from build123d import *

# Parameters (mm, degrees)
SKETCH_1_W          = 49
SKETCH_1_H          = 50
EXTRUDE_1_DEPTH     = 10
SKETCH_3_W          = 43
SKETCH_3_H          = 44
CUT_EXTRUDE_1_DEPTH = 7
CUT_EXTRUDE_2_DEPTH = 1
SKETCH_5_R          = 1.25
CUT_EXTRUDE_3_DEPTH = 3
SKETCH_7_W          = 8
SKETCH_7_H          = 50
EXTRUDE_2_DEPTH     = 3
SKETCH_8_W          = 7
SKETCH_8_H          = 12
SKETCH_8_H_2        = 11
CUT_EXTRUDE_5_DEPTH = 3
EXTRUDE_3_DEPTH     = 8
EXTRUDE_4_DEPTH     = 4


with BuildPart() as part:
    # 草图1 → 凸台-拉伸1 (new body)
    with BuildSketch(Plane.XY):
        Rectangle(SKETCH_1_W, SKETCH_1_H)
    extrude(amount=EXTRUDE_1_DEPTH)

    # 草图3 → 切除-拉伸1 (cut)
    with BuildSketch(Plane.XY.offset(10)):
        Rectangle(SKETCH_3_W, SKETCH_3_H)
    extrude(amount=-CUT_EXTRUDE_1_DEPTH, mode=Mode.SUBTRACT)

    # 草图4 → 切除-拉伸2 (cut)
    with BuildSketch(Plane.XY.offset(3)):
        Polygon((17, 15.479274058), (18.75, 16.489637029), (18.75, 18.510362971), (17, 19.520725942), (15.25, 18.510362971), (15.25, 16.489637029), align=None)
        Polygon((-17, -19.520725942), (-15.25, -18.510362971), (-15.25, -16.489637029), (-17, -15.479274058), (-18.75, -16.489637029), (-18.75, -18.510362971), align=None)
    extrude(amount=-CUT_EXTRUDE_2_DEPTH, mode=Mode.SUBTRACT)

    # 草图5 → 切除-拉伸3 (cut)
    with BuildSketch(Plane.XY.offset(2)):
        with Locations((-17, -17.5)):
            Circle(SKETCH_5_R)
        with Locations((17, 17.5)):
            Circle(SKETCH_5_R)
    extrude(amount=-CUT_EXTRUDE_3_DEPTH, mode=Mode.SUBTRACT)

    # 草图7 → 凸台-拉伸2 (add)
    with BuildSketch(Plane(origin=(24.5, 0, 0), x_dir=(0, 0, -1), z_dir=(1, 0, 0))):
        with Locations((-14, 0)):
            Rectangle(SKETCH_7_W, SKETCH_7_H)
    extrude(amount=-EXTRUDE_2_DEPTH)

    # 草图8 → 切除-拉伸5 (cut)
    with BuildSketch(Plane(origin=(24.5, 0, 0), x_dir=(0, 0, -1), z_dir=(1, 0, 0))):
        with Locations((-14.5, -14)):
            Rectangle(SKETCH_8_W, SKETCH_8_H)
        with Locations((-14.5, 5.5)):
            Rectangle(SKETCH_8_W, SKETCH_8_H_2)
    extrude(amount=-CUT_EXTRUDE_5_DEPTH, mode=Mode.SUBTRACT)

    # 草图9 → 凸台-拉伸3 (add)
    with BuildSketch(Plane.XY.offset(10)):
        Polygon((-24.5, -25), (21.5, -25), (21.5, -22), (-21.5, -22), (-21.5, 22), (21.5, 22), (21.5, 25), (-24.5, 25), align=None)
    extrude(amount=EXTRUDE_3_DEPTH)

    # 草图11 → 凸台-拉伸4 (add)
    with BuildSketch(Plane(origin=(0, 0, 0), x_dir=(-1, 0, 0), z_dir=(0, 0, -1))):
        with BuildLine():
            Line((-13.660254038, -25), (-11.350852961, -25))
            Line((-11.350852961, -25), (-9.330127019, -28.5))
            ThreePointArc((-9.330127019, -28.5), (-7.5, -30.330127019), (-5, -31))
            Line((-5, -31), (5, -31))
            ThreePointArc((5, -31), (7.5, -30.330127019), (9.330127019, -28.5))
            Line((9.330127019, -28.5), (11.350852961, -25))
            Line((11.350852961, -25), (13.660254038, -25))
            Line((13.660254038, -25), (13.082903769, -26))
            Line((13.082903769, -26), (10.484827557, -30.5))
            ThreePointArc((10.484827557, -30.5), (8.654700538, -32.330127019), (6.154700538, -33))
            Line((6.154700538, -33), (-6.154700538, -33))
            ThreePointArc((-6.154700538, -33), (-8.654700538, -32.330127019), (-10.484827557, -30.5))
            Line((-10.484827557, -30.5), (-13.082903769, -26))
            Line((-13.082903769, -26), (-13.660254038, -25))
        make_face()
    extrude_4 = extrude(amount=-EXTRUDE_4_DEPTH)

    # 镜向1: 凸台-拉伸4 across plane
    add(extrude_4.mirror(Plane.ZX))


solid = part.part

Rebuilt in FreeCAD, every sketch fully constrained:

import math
import FreeCAD as App
import Part
import Sketcher

V = App.Vector
Q = App.Units.Quantity

doc = App.newDocument("Part")
body = doc.addObject("PartDesign::Body", "Body")

sketch1 = body.newObject("Sketcher::SketchObject", "Sketch")
sketch1.AttachmentSupport = (doc.getObject("XY_Plane"), [""])
sketch1.MapMode = "FlatFace"
sketch1.addGeometry([
    Part.LineSegment(V(-24, 25, 0), V(-24, -25, 0)),
    Part.LineSegment(V(-24, -25, 0), V(24, -25, 0)),
    Part.LineSegment(V(24, -25, 0), V(24, 25, 0)),
    Part.LineSegment(V(24, 25, 0), V(-24, 25, 0)),
], False)
sketch1.addConstraint([
    Sketcher.Constraint("Coincident", 0, 2, 1, 1),
    Sketcher.Constraint("Coincident", 1, 2, 2, 1),
    Sketcher.Constraint("Coincident", 2, 2, 3, 1),
    Sketcher.Constraint("Coincident", 3, 2, 0, 1),
    Sketcher.Constraint("Vertical", 0),
    Sketcher.Constraint("Horizontal", 1),
    Sketcher.Constraint("Vertical", 2),
    Sketcher.Constraint("Horizontal", 3),
    Sketcher.Constraint("Symmetric", 0, 2, 2, 2, -1, 1),
    Sketcher.Constraint("DistanceX", 1, 1, 1, 2, Q("49 mm")),
    Sketcher.Constraint("DistanceY", 0, 2, 0, 1, Q("50 mm")),
])
pad1 = body.newObject("PartDesign::Pad", "Pad")
pad1.Profile = sketch1
pad1.Length = 10

sketch2 = body.newObject("Sketcher::SketchObject", "Sketch001")
sketch2.AttachmentSupport = (doc.getObject("XY_Plane"), [""])
sketch2.MapMode = "FlatFace"
sketch2.AttachmentOffset = App.Placement(V(0, 0, 10), App.Rotation())
sketch2.addGeometry([
    Part.LineSegment(V(-22, 22, 0), V(-22, -22, 0)),
    Part.LineSegment(V(-22, -22, 0), V(22, -22, 0)),
    Part.LineSegment(V(22, -22, 0), V(22, 22, 0)),
    Part.LineSegment(V(22, 22, 0), V(-22, 22, 0)),
], False)
sketch2.addConstraint([
    Sketcher.Constraint("Coincident", 0, 2, 1, 1),
    Sketcher.Constraint("Coincident", 1, 2, 2, 1),
    Sketcher.Constraint("Coincident", 2, 2, 3, 1),
    Sketcher.Constraint("Coincident", 3, 2, 0, 1),
    Sketcher.Constraint("Vertical", 0),
    Sketcher.Constraint("Horizontal", 1),
    Sketcher.Constraint("Vertical", 2),
    Sketcher.Constraint("Horizontal", 3),
    Sketcher.Constraint("Symmetric", 0, 2, 2, 2, -1, 1),
    Sketcher.Constraint("DistanceX", 1, 1, 1, 2, Q("43 mm")),
    Sketcher.Constraint("DistanceY", 0, 2, 0, 1, Q("44 mm")),
])
pocket1 = body.newObject("PartDesign::Pocket", "Pocket")
pocket1.Profile = sketch2
pocket1.Length = 7

sketch3 = body.newObject("Sketcher::SketchObject", "Sketch002")
sketch3.AttachmentSupport = (doc.getObject("XY_Plane"), [""])
sketch3.MapMode = "FlatFace"
sketch3.AttachmentOffset = App.Placement(V(0, 0, 3), App.Rotation())
sketch3.addGeometry([
    Part.LineSegment(V(17, 15.5, 0), V(18.8, 16.5, 0)),
    Part.LineSegment(V(18.8, 16.5, 0), V(18.8, 18.5, 0)),
    Part.LineSegment(V(18.8, 18.5, 0), V(17, 19.5, 0)),
    Part.LineSegment(V(17, 19.5, 0), V(15.2, 18.5, 0)),
    Part.LineSegment(V(15.2, 18.5, 0), V(15.2, 16.5, 0)),
    Part.LineSegment(V(15.2, 16.5, 0), V(17, 15.5, 0)),
    Part.LineSegment(V(-17, -19.5, 0), V(-15.2, -18.5, 0)),
    Part.LineSegment(V(-15.2, -18.5, 0), V(-15.2, -16.5, 0)),
    Part.LineSegment(V(-15.2, -16.5, 0), V(-17, -15.5, 0)),
    Part.LineSegment(V(-17, -15.5, 0), V(-18.8, -16.5, 0)),
    Part.LineSegment(V(-18.8, -16.5, 0), V(-18.8, -18.5, 0)),
    Part.LineSegment(V(-18.8, -18.5, 0), V(-17, -19.5, 0)),
], False)
sketch3.addConstraint([
    Sketcher.Constraint("Coincident", 0, 2, 1, 1),
    Sketcher.Constraint("Coincident", 1, 2, 2, 1),
    Sketcher.Constraint("Coincident", 2, 2, 3, 1),
    Sketcher.Constraint("Coincident", 3, 2, 4, 1),
    Sketcher.Constraint("Coincident", 4, 2, 5, 1),
    Sketcher.Constraint("Coincident", 5, 2, 0, 1),
    Sketcher.Constraint("Coincident", 6, 2, 7, 1),
    Sketcher.Constraint("Coincident", 7, 2, 8, 1),
    Sketcher.Constraint("Coincident", 8, 2, 9, 1),
    Sketcher.Constraint("Coincident", 9, 2, 10, 1),
    Sketcher.Constraint("Coincident", 10, 2, 11, 1),
    Sketcher.Constraint("Coincident", 11, 2, 6, 1),
    Sketcher.Constraint("Vertical", 1),
    Sketcher.Constraint("Vertical", 4),
    Sketcher.Constraint("Vertical", 7),
    Sketcher.Constraint("Vertical", 10),
    Sketcher.Constraint("Symmetric", 3, 2, 6, 2, -1, 1),
    Sketcher.Constraint("Symmetric", 5, 2, 8, 2, -1, 1),
    Sketcher.Constraint("Symmetric", 0, 2, 9, 2, -1, 1),
    Sketcher.Constraint("Symmetric", 2, 2, 11, 2, -1, 1),
    Sketcher.Constraint("Parallel", 0, 3),
    Sketcher.Constraint("Parallel", 2, 5),
    Sketcher.Constraint("Parallel", 5, 8),
    Sketcher.Constraint("Parallel", 8, 11),
    Sketcher.Constraint("Horizontal", 1, 2, 3, 2),
    Sketcher.Constraint("Horizontal", 0, 2, 4, 2),
    Sketcher.Constraint("Vertical", 2, 2, 5, 2),
    Sketcher.Constraint("Angle", 0, Q("30 deg")),
    Sketcher.Constraint("DistanceX", -1, 1, 2, 2, Q("17 mm")),
    Sketcher.Constraint("DistanceY", 6, 2, 4, 2, Q("35 mm")),
    Sketcher.Constraint("DistanceX", 3, 2, 1, 2, Q("3.5 mm")),
    Sketcher.Constraint("DistanceY", 1, 1, 1, 2, Q("2.020726 mm")),
])
pocket2 = body.newObject("PartDesign::Pocket", "Pocket001")
pocket2.Profile = sketch3
pocket2.Length = 1

sketch4 = body.newObject("Sketcher::SketchObject", "Sketch003")
sketch4.AttachmentSupport = (doc.getObject("XY_Plane"), [""])
sketch4.MapMode = "FlatFace"
sketch4.AttachmentOffset = App.Placement(V(0, 0, 2), App.Rotation())
sketch4.addGeometry([
    Part.Circle(V(-17, -17.5, 0), V(0, 0, 1), 1.2),
    Part.Circle(V(17, 17.5, 0), V(0, 0, 1), 1.2),
], False)
sketch4.addConstraint([
    Sketcher.Constraint("Equal", 0, 1),
    Sketcher.Constraint("Symmetric", 0, 3, 1, 3, -1, 1),
    Sketcher.Constraint("Diameter", 0, Q("2.5 mm")),
    Sketcher.Constraint("DistanceX", 0, 3, -1, 1, Q("17 mm")),
    Sketcher.Constraint("DistanceY", 0, 3, 1, 3, Q("35 mm")),
])
pocket3 = body.newObject("PartDesign::Pocket", "Pocket002")
pocket3.Profile = sketch4
pocket3.Length = 3

sketch5 = body.newObject("Sketcher::SketchObject", "Sketch004")
sketch5.AttachmentSupport = (doc.getObject("YZ_Plane"), [""])
sketch5.MapMode = "FlatFace"
sketch5.AttachmentOffset = App.Placement(V(0, 0, 24.5), App.Rotation())
sketch5.addGeometry([
    Part.LineSegment(V(25, 18, 0), V(-25, 18, 0)),
    Part.LineSegment(V(-25, 18, 0), V(-25, 10, 0)),
    Part.LineSegment(V(-25, 10, 0), V(25, 10, 0)),
    Part.LineSegment(V(25, 10, 0), V(25, 18, 0)),
], False)
sketch5.addConstraint([
    Sketcher.Constraint("Coincident", 0, 2, 1, 1),
    Sketcher.Constraint("Coincident", 1, 2, 2, 1),
    Sketcher.Constraint("Coincident", 2, 2, 3, 1),
    Sketcher.Constraint("Coincident", 3, 2, 0, 1),
    Sketcher.Constraint("Horizontal", 0),
    Sketcher.Constraint("Vertical", 1),
    Sketcher.Constraint("Horizontal", 2),
    Sketcher.Constraint("Vertical", 3),
    Sketcher.Constraint("DistanceX", 0, 2, 0, 1, Q("50 mm")),
    Sketcher.Constraint("DistanceY", 1, 2, 1, 1, Q("8 mm")),
    Sketcher.Constraint("DistanceX", 0, 2, -1, 1, Q("25 mm")),
    Sketcher.Constraint("DistanceY", -1, 1, 0, 2, Q("18 mm")),
])
pad2 = body.newObject("PartDesign::Pad", "Pad001")
pad2.Profile = sketch5
pad2.Length = 3
pad2.Reversed = True

sketch6 = body.newObject("Sketcher::SketchObject", "Sketch005")
sketch6.AttachmentSupport = (doc.getObject("YZ_Plane"), [""])
sketch6.MapMode = "FlatFace"
sketch6.AttachmentOffset = App.Placement(V(0, 0, 24.5), App.Rotation())
sketch6.addGeometry([
    Part.LineSegment(V(-8, 18, 0), V(-20, 18, 0)),
    Part.LineSegment(V(-20, 18, 0), V(-20, 11, 0)),
    Part.LineSegment(V(-20, 11, 0), V(-8, 11, 0)),
    Part.LineSegment(V(-8, 11, 0), V(-8, 18, 0)),
    Part.LineSegment(V(11, 18, 0), V(0, 18, 0)),
    Part.LineSegment(V(0, 18, 0), V(0, 11, 0)),
    Part.LineSegment(V(0, 11, 0), V(11, 11, 0)),
    Part.LineSegment(V(11, 11, 0), V(11, 18, 0)),
], False)
sketch6.addConstraint([
    Sketcher.Constraint("Coincident", 0, 2, 1, 1),
    Sketcher.Constraint("Coincident", 1, 2, 2, 1),
    Sketcher.Constraint("Coincident", 2, 2, 3, 1),
    Sketcher.Constraint("Coincident", 3, 2, 0, 1),
    Sketcher.Constraint("Coincident", 4, 2, 5, 1),
    Sketcher.Constraint("Coincident", 5, 2, 6, 1),
    Sketcher.Constraint("Coincident", 6, 2, 7, 1),
    Sketcher.Constraint("Coincident", 7, 2, 4, 1),
    Sketcher.Constraint("Horizontal", 0),
    Sketcher.Constraint("Vertical", 1),
    Sketcher.Constraint("Horizontal", 2),
    Sketcher.Constraint("Vertical", 3),
    Sketcher.Constraint("Horizontal", 4),
    Sketcher.Constraint("Vertical", 5),
    Sketcher.Constraint("Horizontal", 6),
    Sketcher.Constraint("Vertical", 7),
    Sketcher.Constraint("PointOnObject", 4, 2, -2),
    Sketcher.Constraint("Horizontal", 3, 2, 4, 2),
    Sketcher.Constraint("Horizontal", 2, 2, 5, 2),
    Sketcher.Constraint("DistanceX", 0, 2, 0, 1, Q("12 mm")),
    Sketcher.Constraint("DistanceX", 4, 2, 4, 1, Q("11 mm")),
    Sketcher.Constraint("DistanceY", 1, 2, 1, 1, Q("7 mm")),
    Sketcher.Constraint("DistanceX", 0, 2, -1, 1, Q("20 mm")),
    Sketcher.Constraint("DistanceY", -1, 1, 0, 2, Q("18 mm")),
])
pocket4 = body.newObject("PartDesign::Pocket", "Pocket003")
pocket4.Profile = sketch6
pocket4.Length = 3

sketch7 = body.newObject("Sketcher::SketchObject", "Sketch006")
sketch7.AttachmentSupport = (doc.getObject("XY_Plane"), [""])
sketch7.MapMode = "FlatFace"
sketch7.AttachmentOffset = App.Placement(V(0, 0, 10), App.Rotation())
sketch7.addGeometry([
    Part.LineSegment(V(-24.5, -25, 0), V(21.5, -25, 0)),
    Part.LineSegment(V(21.5, -25, 0), V(21.5, -22, 0)),
    Part.LineSegment(V(21.5, -22, 0), V(-21.5, -22, 0)),
    Part.LineSegment(V(-21.5, -22, 0), V(-21.5, 22, 0)),
    Part.LineSegment(V(-21.5, 22, 0), V(21.5, 22, 0)),
    Part.LineSegment(V(21.5, 22, 0), V(21.5, 25, 0)),
    Part.LineSegment(V(21.5, 25, 0), V(-24.5, 25, 0)),
    Part.LineSegment(V(-24.5, 25, 0), V(-24.5, -25, 0)),
], False)
sketch7.addConstraint([
    Sketcher.Constraint("Coincident", 0, 2, 1, 1),
    Sketcher.Constraint("Coincident", 1, 2, 2, 1),
    Sketcher.Constraint("Coincident", 2, 2, 3, 1),
    Sketcher.Constraint("Coincident", 3, 2, 4, 1),
    Sketcher.Constraint("Coincident", 4, 2, 5, 1),
    Sketcher.Constraint("Coincident", 5, 2, 6, 1),
    Sketcher.Constraint("Coincident", 6, 2, 7, 1),
    Sketcher.Constraint("Coincident", 7, 2, 0, 1),
    Sketcher.Constraint("Horizontal", 0),
    Sketcher.Constraint("Vertical", 1),
    Sketcher.Constraint("Horizontal", 2),
    Sketcher.Constraint("Vertical", 3),
    Sketcher.Constraint("Horizontal", 4),
    Sketcher.Constraint("Vertical", 5),
    Sketcher.Constraint("Horizontal", 6),
    Sketcher.Constraint("Vertical", 7),
    Sketcher.Constraint("Symmetric", 1, 2, 3, 2, -1, 1),
    Sketcher.Constraint("Symmetric", 0, 2, 5, 2, -1),
    Sketcher.Constraint("DistanceX", 0, 1, 0, 2, Q("46 mm")),
    Sketcher.Constraint("DistanceX", 2, 2, 2, 1, Q("43 mm")),
    Sketcher.Constraint("DistanceY", 1, 1, 1, 2, Q("3 mm")),
    Sketcher.Constraint("DistanceY", 3, 1, 3, 2, Q("44 mm")),
])
pad3 = body.newObject("PartDesign::Pad", "Pad002")
pad3.Profile = sketch7
pad3.Length = 8

sketch8 = body.newObject("Sketcher::SketchObject", "Sketch007")
sketch8.AttachmentSupport = (doc.getObject("XY_Plane"), [""])
sketch8.MapMode = "FlatFace"
sketch8.addGeometry([
    Part.LineSegment(V(11.4, -25, 0), V(13.7, -25, 0)),
    Part.LineSegment(V(13.7, -25, 0), V(13.1, -26, 0)),
    Part.LineSegment(V(13.1, -26, 0), V(10.5, -30.5, 0)),
    Part.ArcOfCircle(Part.Circle(V(6.2, -28, 0), V(0, 0, 1), 5), math.radians(-90), math.radians(-30)),
    Part.LineSegment(V(6.2, -33, 0), V(-6.2, -33, 0)),
    Part.ArcOfCircle(Part.Circle(V(-6.2, -28, 0), V(0, 0, 1), 5), math.radians(-150), math.radians(-90)),
    Part.LineSegment(V(-10.5, -30.5, 0), V(-13.1, -26, 0)),
    Part.LineSegment(V(-13.1, -26, 0), V(-13.7, -25, 0)),
    Part.LineSegment(V(-13.7, -25, 0), V(-11.4, -25, 0)),
    Part.LineSegment(V(-11.4, -25, 0), V(-9.3, -28.5, 0)),
    Part.ArcOfCircle(Part.Circle(V(-5, -26, 0), V(0, 0, 1), 5), math.radians(-150), math.radians(-90)),
    Part.LineSegment(V(-5, -31, 0), V(5, -31, 0)),
    Part.ArcOfCircle(Part.Circle(V(5, -26, 0), V(0, 0, 1), 5), math.radians(-90), math.radians(-30)),
    Part.LineSegment(V(9.3, -28.5, 0), V(11.4, -25, 0)),
], False)
sketch8.addConstraint([
    Sketcher.Constraint("Coincident", 0, 2, 1, 1),
    Sketcher.Constraint("Coincident", 1, 2, 2, 1),
    Sketcher.Constraint("Tangent", 2, 2, 3, 2),
    Sketcher.Constraint("Tangent", 3, 1, 4, 1),
    Sketcher.Constraint("Tangent", 4, 2, 5, 2),
    Sketcher.Constraint("Tangent", 5, 1, 6, 1),
    Sketcher.Constraint("Coincident", 6, 2, 7, 1),
    Sketcher.Constraint("Coincident", 7, 2, 8, 1),
    Sketcher.Constraint("Coincident", 8, 2, 9, 1),
    Sketcher.Constraint("Tangent", 9, 2, 10, 1),
    Sketcher.Constraint("Tangent", 10, 2, 11, 1),
    Sketcher.Constraint("Tangent", 11, 2, 12, 1),
    Sketcher.Constraint("Tangent", 12, 2, 13, 1),
    Sketcher.Constraint("Coincident", 13, 2, 0, 1),
    Sketcher.Constraint("Horizontal", 0),
    Sketcher.Constraint("Horizontal", 4),
    Sketcher.Constraint("Horizontal", 8),
    Sketcher.Constraint("Horizontal", 11),
    Sketcher.Constraint("Equal", 3, 5),
    Sketcher.Constraint("Equal", 5, 10),
    Sketcher.Constraint("Equal", 10, 12),
    Sketcher.Constraint("Symmetric", 2, 2, 5, 1, -2),
    Sketcher.Constraint("Symmetric", 0, 2, 7, 2, -2),
    Sketcher.Constraint("Symmetric", 9, 2, 12, 2, -2),
    Sketcher.Constraint("Parallel", 1, 2),
    Sketcher.Constraint("Parallel", 7, 9),
    Sketcher.Constraint("Horizontal", 12, 3, 1, 2),
    Sketcher.Constraint("Horizontal", 1, 2, 6, 2),
    Sketcher.Constraint("Radius", 3, Q("5 mm")),
    Sketcher.Constraint("DistanceX", 11, 1, 11, 2, Q("10 mm")),
    Sketcher.Constraint("Angle", 1, Q("-120 deg")),
    Sketcher.Constraint("DistanceY", 3, 3, -1, 1, Q("28 mm")),
    Sketcher.Constraint("DistanceY", 10, 3, -1, 1, Q("26 mm")),
    Sketcher.Constraint("DistanceY", 0, 2, -1, 1, Q("25 mm")),
    Sketcher.Constraint("DistanceX", 0, 1, 0, 2, Q("2.309401 mm")),
])
pad4 = body.newObject("PartDesign::Pad", "Pad003")
pad4.Profile = sketch8
pad4.Length = 4
doc.recompute()

mirrored = body.newObject("PartDesign::Mirrored", "Mirrored")
mirrored.Originals = [pad4]
mirrored.MirrorPlane = (doc.getObject("XZ_Plane"), [""])
body.Tip = mirrored

doc.recompute()
